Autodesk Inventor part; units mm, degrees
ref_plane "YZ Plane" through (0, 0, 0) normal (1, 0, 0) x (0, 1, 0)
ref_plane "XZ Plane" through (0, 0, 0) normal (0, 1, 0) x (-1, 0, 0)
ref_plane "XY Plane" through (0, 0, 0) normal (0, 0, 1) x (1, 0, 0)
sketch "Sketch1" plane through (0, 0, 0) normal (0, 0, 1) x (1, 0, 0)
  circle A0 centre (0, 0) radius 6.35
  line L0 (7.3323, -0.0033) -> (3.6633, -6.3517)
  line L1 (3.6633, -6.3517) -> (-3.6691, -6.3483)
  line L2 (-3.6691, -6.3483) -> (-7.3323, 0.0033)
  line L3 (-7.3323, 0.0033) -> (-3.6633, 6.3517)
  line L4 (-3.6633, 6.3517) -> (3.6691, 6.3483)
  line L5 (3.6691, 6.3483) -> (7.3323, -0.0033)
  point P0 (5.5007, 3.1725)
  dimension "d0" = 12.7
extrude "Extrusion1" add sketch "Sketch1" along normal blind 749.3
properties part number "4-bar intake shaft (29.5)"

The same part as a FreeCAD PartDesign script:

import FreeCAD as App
import Part
import Sketcher

V = App.Vector
Q = App.Units.Quantity

doc = App.newDocument("Part")
params = doc.addObject("Spreadsheet::Sheet", "Params")
for row, (alias, value) in enumerate([
    ("pad1_length", "29.5 in"),
], start=1):
    params.set(f"A{row}", alias)
    params.set(f"B{row}", "=" + value)
    params.setAlias(f"B{row}", alias)

body = doc.addObject("PartDesign::Body", "Body")

sketch1 = body.newObject("Sketcher::SketchObject", "Sketch")
sketch1.AttachmentSupport = (doc.getObject("XY_Plane"), [""])
sketch1.MapMode = "FlatFace"
sketch1.addGeometry([
    Part.LineSegment(V(7, 0, 0), V(4, 6, 0)),
    Part.LineSegment(V(4, 6, 0), V(-4, 6, 0)),
    Part.LineSegment(V(-4, 6, 0), V(-7, 0, 0)),
    Part.LineSegment(V(-7, 0, 0), V(-4, -6, 0)),
    Part.LineSegment(V(-4, -6, 0), V(4, -6, 0)),
    Part.LineSegment(V(4, -6, 0), V(7, 0, 0)),
], False)
sketch1.addConstraint([
    Sketcher.Constraint("Coincident", 0, 2, 1, 1),
    Sketcher.Constraint("Coincident", 1, 2, 2, 1),
    Sketcher.Constraint("Coincident", 2, 2, 3, 1),
    Sketcher.Constraint("Coincident", 3, 2, 4, 1),
    Sketcher.Constraint("Coincident", 4, 2, 5, 1),
    Sketcher.Constraint("Coincident", 5, 2, 0, 1),
    Sketcher.Constraint("Symmetric", 0, 2, 3, 2, -1, 1),
    Sketcher.Constraint("Symmetric", 1, 2, 4, 2, -1, 1),
    Sketcher.Constraint("Symmetric", 2, 2, 5, 2, -1, 1),
    Sketcher.Constraint("Equal", 0, 1),
    Sketcher.Constraint("Equal", 1, 2),
    Sketcher.Constraint("DistanceY", 3, 2, 1, 2, Q("0.5 in")),
    Sketcher.Constraint("DistanceY", 2, 2, 0, 2, Q("0.2498 in")),
    Sketcher.Constraint("DistanceX", 3, 2, 0, 2, Q("0.2889 in")),
    Sketcher.Constraint("DistanceX", 2, 2, 4, 2, Q("0.4329 in")),
])
pad1 = body.newObject("PartDesign::Pad", "Pad")
pad1.Profile = sketch1
pad1.setExpression("Length", "Params.pad1_length")

doc.recompute()
